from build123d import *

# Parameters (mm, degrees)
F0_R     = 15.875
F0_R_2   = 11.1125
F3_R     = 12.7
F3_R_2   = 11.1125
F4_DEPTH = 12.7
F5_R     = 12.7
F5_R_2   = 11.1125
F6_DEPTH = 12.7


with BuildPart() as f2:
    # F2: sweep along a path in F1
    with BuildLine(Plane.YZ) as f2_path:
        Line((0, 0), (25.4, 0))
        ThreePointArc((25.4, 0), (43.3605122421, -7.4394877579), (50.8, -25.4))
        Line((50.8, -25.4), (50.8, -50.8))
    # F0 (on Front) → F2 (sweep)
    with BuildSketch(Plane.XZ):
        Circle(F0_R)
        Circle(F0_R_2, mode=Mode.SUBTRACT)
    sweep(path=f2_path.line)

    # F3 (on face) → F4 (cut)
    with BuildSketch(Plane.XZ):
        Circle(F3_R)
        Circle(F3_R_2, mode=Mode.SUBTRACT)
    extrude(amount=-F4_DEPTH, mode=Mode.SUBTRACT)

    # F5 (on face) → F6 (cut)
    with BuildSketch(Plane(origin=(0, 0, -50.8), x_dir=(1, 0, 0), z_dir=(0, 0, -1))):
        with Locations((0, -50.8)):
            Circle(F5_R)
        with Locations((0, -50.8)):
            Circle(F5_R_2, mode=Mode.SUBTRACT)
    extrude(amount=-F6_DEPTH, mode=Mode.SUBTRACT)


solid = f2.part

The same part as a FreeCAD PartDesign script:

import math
import FreeCAD as App
import Part
import Sketcher

V = App.Vector
Q = App.Units.Quantity

doc = App.newDocument("Part")
body = doc.addObject("PartDesign::Body", "Body")

# Sketch on XZ plane
sketch1 = body.newObject("Sketcher::SketchObject", "Sketch")
sketch1.AttachmentSupport = (doc.getObject("XZ_Plane"), [""])
sketch1.MapMode = "FlatFace"
sketch1.addGeometry([
    Part.Circle(V(0, 0, 0), V(0, 0, 1), 16),
    Part.Circle(V(0, 0, 0), V(0, 0, 1), 11),
], False)
sketch1.addConstraint([
    Sketcher.Constraint("Coincident", 0, 3, -1, 1),
    Sketcher.Constraint("Coincident", 1, 3, -1, 1),
    Sketcher.Constraint("Diameter", 0, Q("1.25 in")),
    Sketcher.Constraint("Diameter", 1, Q("0.875 in")),
])

# Sketch on YZ plane
sketch2 = body.newObject("Sketcher::SketchObject", "Sketch001")
sketch2.AttachmentSupport = (doc.getObject("YZ_Plane"), [""])
sketch2.MapMode = "FlatFace"
sketch2.addGeometry([
    Part.LineSegment(V(0, 0, 0), V(25, 0, 0)),
    Part.ArcOfCircle(Part.Circle(V(25, -25, 0), V(0, 0, 1), 25), math.radians(0), math.radians(90)),
    Part.LineSegment(V(51, -25, 0), V(51, -51, 0)),
], False)
sketch2.addConstraint([
    Sketcher.Constraint("Tangent", 0, 2, 1, 2),
    Sketcher.Constraint("Tangent", 1, 1, 2, 1),
    Sketcher.Constraint("Horizontal", 0),
    Sketcher.Constraint("Vertical", 2),
    Sketcher.Constraint("Coincident", 0, 1, -1, 1),
    Sketcher.Constraint("Equal", 0, 2),
    Sketcher.Constraint("Radius", 1, Q("1 in")),
    Sketcher.Constraint("DistanceX", 0, 1, 0, 2, Q("1 in")),
])
doc.recompute()

additivepipe = body.newObject("PartDesign::AdditivePipe", "AdditivePipe")
additivepipe.Profile = sketch1
additivepipe.Spine = (sketch2, ["Edge1", "Edge2", "Edge3"])

# Sketch on XZ plane
sketch3 = body.newObject("Sketcher::SketchObject", "Sketch002")
sketch3.AttachmentSupport = (doc.getObject("XZ_Plane"), [""])
sketch3.MapMode = "FlatFace"
sketch3.addGeometry([
    Part.Circle(V(0, 0, 0), V(0, 0, 1), 13),
    Part.Circle(V(0, 0, 0), V(0, 0, 1), 11),
], False)
sketch3.addConstraint([
    Sketcher.Constraint("Coincident", 0, 3, -1, 1),
    Sketcher.Constraint("Coincident", 1, 3, -1, 1),
    Sketcher.Constraint("Diameter", 0, Q("1 in")),
    Sketcher.Constraint("Diameter", 1, Q("0.875 in")),
])
pocket1 = body.newObject("PartDesign::Pocket", "Pocket")
pocket1.Profile = sketch3
pocket1.Length = Q("0.5 in")

# Sketch on XY plane
sketch4 = body.newObject("Sketcher::SketchObject", "Sketch003")
sketch4.AttachmentSupport = (doc.getObject("XY_Plane"), [""])
sketch4.MapMode = "FlatFace"
sketch4.AttachmentOffset = App.Placement(V(0, 0, -2 * 25.4), App.Rotation())
sketch4.addGeometry([
    Part.Circle(V(0, 51, 0), V(0, 0, 1), 13),
    Part.Circle(V(0, 51, 0), V(0, 0, 1), 11),
], False)
sketch4.addConstraint([
    Sketcher.Constraint("Coincident", 1, 3, 0, 3),
    Sketcher.Constraint("PointOnObject", 0, 3, -2),
    Sketcher.Constraint("Diameter", 0, Q("1 in")),
    Sketcher.Constraint("Diameter", 1, Q("0.875 in")),
    Sketcher.Constraint("DistanceY", -1, 1, 0, 3, Q("2 in")),
])
pocket2 = body.newObject("PartDesign::Pocket", "Pocket001")
pocket2.Profile = sketch4
pocket2.Length = Q("0.5 in")
pocket2.Reversed = True

doc.recompute()
